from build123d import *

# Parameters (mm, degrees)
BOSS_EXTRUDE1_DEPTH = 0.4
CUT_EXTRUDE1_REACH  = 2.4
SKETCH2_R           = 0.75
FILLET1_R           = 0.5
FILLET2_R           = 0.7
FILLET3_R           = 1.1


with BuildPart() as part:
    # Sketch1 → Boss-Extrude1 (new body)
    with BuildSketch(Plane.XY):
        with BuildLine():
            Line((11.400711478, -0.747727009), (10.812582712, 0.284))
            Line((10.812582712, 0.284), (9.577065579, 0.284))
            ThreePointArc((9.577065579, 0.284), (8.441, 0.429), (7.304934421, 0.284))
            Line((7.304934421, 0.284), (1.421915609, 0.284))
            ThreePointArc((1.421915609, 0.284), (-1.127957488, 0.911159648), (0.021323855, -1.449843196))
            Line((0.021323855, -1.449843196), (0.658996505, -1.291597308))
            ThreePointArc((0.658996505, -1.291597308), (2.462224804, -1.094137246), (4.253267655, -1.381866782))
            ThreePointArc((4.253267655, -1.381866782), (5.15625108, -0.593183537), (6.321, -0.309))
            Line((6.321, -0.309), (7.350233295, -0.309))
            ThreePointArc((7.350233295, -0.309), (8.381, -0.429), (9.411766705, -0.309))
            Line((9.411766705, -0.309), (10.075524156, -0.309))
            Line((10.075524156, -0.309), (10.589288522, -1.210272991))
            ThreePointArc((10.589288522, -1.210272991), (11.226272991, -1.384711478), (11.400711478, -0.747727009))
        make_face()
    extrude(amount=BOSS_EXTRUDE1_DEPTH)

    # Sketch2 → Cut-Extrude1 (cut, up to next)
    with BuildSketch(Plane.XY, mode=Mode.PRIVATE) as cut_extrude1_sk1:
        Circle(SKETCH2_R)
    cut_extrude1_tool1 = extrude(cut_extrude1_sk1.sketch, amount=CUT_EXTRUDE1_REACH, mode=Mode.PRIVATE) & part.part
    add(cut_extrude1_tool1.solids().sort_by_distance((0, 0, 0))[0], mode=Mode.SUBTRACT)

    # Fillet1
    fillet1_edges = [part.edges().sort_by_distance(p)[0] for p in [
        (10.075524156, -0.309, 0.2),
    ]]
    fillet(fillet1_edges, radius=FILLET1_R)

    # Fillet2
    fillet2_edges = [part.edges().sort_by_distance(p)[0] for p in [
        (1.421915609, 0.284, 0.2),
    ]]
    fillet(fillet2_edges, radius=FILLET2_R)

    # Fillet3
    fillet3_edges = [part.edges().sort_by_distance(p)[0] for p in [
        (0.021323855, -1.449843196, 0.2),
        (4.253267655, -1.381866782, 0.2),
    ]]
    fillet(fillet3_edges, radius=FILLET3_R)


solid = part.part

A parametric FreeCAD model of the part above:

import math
import FreeCAD as App
import Part
import Sketcher

V = App.Vector
Q = App.Units.Quantity


def edges_at(feature, points):
    """Names of the edges that pass closest to the given points."""
    edges = feature.Shape.Edges
    near = lambda p: min(range(len(edges)), key=lambda i: edges[i].distToShape(Part.Vertex(*p))[0])
    return sorted({f"Edge{near(p) + 1}" for p in points})

doc = App.newDocument("Part")
params = doc.addObject("Spreadsheet::Sheet", "Params")
for row, (alias, value) in enumerate([
    ("sketch1_radius", "1.45 mm"),
    ("sketch1_radius2", "6.78 mm"),
    ("pad1_length", "0.4 mm"),
    ("sketch2_diameter", "1.5 mm"),
    ("fillet_radius", "0.5 mm"),
    ("fillet2_radius", "0.7 mm"),
    ("fillet3_radius", "1.1 mm"),
], start=1):
    params.set(f"A{row}", alias)
    params.set(f"B{row}", "=" + value)
    params.setAlias(f"B{row}", alias)

body = doc.addObject("PartDesign::Body", "Body")

# Sketch on XY plane
sketch1 = body.newObject("Sketcher::SketchObject", "Sketch")
sketch1.AttachmentSupport = (doc.getObject("XY_Plane"), [""])
sketch1.MapMode = "FlatFace"
sketch1.addGeometry([
    Part.LineSegment(V(11.4, -0.75, 0), V(10.81, 0.28, 0)),  # 0
    Part.LineSegment(V(10.81, 0.28, 0), V(9.58, 0.28, 0)),  # 1
    Part.ArcOfCircle(Part.Circle(V(8.44, -4.09, 0), V(0, 0, 1), 4.52), math.radians(75), math.radians(105)),  # 2
    Part.LineSegment(V(7.3, 0.28, 0), V(1.42, 0.28, 0)),  # 3
    Part.ArcOfCircle(Part.Circle(V(0, 0, 0), V(0, 0, 1), 1.45), math.radians(11), math.radians(271)),  # 4
    Part.LineSegment(V(0.02, -1.45, 0), V(0.66, -1.29, 0)),  # 5
    Part.ArcOfCircle(Part.Circle(V(2.29, -7.87, 0), V(0, 0, 1), 6.78), math.radians(73), math.radians(104)),  # 6
    Part.ArcOfCircle(Part.Circle(V(6.32, -2.84, 0), V(0, 0, 1), 2.53), math.radians(90), math.radians(145)),  # 7
    Part.LineSegment(V(6.32, -0.31, 0), V(7.35, -0.31, 0)),  # 8
    Part.ArcOfCircle(Part.Circle(V(8.38, 4.06, 0), V(0, 0, 1), 4.49), math.radians(-103), math.radians(-77)),  # 9
    Part.LineSegment(V(9.41, -0.31, 0), V(10.08, -0.31, 0)),  # 10
    Part.LineSegment(V(10.08, -0.31, 0), V(10.59, -1.21, 0)),  # 11
    Part.ArcOfCircle(Part.Circle(V(10.99, -0.98, 0), V(0, 0, 1), 0.47), math.radians(-150), math.radians(30)),  # 12
], False)
sketch1.addConstraint([
    Sketcher.Constraint("Coincident", 0, 2, 1, 1),
    Sketcher.Constraint("Coincident", 1, 2, 2, 1),
    Sketcher.Constraint("Coincident", 2, 2, 3, 1),
    Sketcher.Constraint("Coincident", 3, 2, 4, 1),
    Sketcher.Constraint("Coincident", 4, 2, 5, 1),
    Sketcher.Constraint("Tangent", 5, 2, 6, 2),
    Sketcher.Constraint("Coincident", 6, 1, 7, 2),
    Sketcher.Constraint("Tangent", 7, 1, 8, 1),
    Sketcher.Constraint("Coincident", 8, 2, 9, 1),
    Sketcher.Constraint("Coincident", 9, 2, 10, 1),
    Sketcher.Constraint("Coincident", 10, 2, 11, 1),
    Sketcher.Constraint("Tangent", 11, 2, 12, 1),
    Sketcher.Constraint("Tangent", 12, 2, 0, 1),
    Sketcher.Constraint("Horizontal", 1),
    Sketcher.Constraint("Horizontal", 3),
    Sketcher.Constraint("Horizontal", 8),
    Sketcher.Constraint("Horizontal", 10),
    Sketcher.Constraint("Coincident", 4, 3, -1, 1),
    Sketcher.Constraint("Parallel", 0, 11),
    Sketcher.Constraint("Horizontal", 1, 2, 2, 2),
    Sketcher.Constraint("Horizontal", 8, 2, 9, 2),
    Sketcher.Constraint("Radius", 4, Q("1.45 mm")),
    Sketcher.Constraint("Radius", 6, Q("6.78 mm")),
    Sketcher.Constraint("Radius", 2, Q("4.523 mm")),
    Sketcher.Constraint("Radius", 7, Q("2.529 mm")),
    Sketcher.Constraint("Radius", 9, Q("4.487 mm")),
    Sketcher.Constraint("Radius", 12, Q("0.467 mm")),
    Sketcher.Constraint("DistanceX", 7, 3, 2, 3, Q("2.12 mm")),
    Sketcher.Constraint("DistanceX", 7, 3, 9, 3, Q("2.06 mm")),
    Sketcher.Constraint("DistanceY", 6, 3, 9, 3, Q("11.93 mm")),
    Sketcher.Constraint("DistanceY", 12, 3, 9, 2, Q("0.67 mm")),
    Sketcher.Constraint("DistanceX", -1, 1, 2, 3, Q("8.441 mm")),
    Sketcher.Constraint("DistanceY", 2, 3, -1, 1, Q("4.094 mm")),
    Sketcher.Constraint("DistanceX", -1, 1, 6, 3, Q("2.292 mm")),
    Sketcher.Constraint("DistanceY", 6, 3, -1, 1, Q("7.872 mm")),
    Sketcher.Constraint("DistanceY", 7, 3, -1, 1, Q("2.838 mm")),
    Sketcher.Constraint("DistanceX", -1, 1, 12, 3, Q("10.995 mm")),
    Sketcher.Constraint("DistanceY", -1, 1, 0, 2, Q("0.284 mm")),
    Sketcher.Constraint("DistanceX", 1, 2, 1, 1, Q("1.235517 mm")),
    Sketcher.Constraint("DistanceX", 4, 2, 3, 2, Q("1.400592 mm")),
])
sketch1.setExpression("Constraints[21]", "Params.sketch1_radius")
sketch1.setExpression("Constraints[22]", "Params.sketch1_radius2")
pad1 = body.newObject("PartDesign::Pad", "Pad")
pad1.Profile = sketch1
pad1.setExpression("Length", "Params.pad1_length")

# Sketch on XY plane
sketch2 = body.newObject("Sketcher::SketchObject", "Sketch001")
sketch2.AttachmentSupport = (doc.getObject("XY_Plane"), [""])
sketch2.MapMode = "FlatFace"
sketch2.addGeometry(Part.Circle(V(0, 0, 0), V(0, 0, 1), 0.8), False)
sketch2.addConstraint([
    Sketcher.Constraint("Coincident", 0, 3, -1, 1),
    Sketcher.Constraint("Diameter", 0, Q("1.5 mm")),
])
sketch2.setExpression("Constraints[1]", "Params.sketch2_diameter")
pocket1 = body.newObject("PartDesign::Pocket", "Pocket")
pocket1.Profile = sketch2
pocket1.Type = "UpToFirst"
pocket1.Reversed = True
doc.recompute()

fillet = body.newObject("PartDesign::Fillet", "Fillet")
fillet.Base = (pocket1, edges_at(pocket1, [(10.076, -0.309, 0.2)]))
fillet.setExpression("Radius", "Params.fillet_radius")
doc.recompute()

fillet2 = body.newObject("PartDesign::Fillet", "Fillet001")
fillet2.Base = (fillet, edges_at(fillet, [(1.422, 0.284, 0.2)]))
fillet2.setExpression("Radius", "Params.fillet2_radius")
doc.recompute()

fillet3 = body.newObject("PartDesign::Fillet", "Fillet002")
fillet3.Base = (fillet2, edges_at(fillet2, [(0.021, -1.45, 0.2), (4.253, -1.382, 0.2)]))
fillet3.setExpression("Radius", "Params.fillet3_radius")

doc.recompute()
